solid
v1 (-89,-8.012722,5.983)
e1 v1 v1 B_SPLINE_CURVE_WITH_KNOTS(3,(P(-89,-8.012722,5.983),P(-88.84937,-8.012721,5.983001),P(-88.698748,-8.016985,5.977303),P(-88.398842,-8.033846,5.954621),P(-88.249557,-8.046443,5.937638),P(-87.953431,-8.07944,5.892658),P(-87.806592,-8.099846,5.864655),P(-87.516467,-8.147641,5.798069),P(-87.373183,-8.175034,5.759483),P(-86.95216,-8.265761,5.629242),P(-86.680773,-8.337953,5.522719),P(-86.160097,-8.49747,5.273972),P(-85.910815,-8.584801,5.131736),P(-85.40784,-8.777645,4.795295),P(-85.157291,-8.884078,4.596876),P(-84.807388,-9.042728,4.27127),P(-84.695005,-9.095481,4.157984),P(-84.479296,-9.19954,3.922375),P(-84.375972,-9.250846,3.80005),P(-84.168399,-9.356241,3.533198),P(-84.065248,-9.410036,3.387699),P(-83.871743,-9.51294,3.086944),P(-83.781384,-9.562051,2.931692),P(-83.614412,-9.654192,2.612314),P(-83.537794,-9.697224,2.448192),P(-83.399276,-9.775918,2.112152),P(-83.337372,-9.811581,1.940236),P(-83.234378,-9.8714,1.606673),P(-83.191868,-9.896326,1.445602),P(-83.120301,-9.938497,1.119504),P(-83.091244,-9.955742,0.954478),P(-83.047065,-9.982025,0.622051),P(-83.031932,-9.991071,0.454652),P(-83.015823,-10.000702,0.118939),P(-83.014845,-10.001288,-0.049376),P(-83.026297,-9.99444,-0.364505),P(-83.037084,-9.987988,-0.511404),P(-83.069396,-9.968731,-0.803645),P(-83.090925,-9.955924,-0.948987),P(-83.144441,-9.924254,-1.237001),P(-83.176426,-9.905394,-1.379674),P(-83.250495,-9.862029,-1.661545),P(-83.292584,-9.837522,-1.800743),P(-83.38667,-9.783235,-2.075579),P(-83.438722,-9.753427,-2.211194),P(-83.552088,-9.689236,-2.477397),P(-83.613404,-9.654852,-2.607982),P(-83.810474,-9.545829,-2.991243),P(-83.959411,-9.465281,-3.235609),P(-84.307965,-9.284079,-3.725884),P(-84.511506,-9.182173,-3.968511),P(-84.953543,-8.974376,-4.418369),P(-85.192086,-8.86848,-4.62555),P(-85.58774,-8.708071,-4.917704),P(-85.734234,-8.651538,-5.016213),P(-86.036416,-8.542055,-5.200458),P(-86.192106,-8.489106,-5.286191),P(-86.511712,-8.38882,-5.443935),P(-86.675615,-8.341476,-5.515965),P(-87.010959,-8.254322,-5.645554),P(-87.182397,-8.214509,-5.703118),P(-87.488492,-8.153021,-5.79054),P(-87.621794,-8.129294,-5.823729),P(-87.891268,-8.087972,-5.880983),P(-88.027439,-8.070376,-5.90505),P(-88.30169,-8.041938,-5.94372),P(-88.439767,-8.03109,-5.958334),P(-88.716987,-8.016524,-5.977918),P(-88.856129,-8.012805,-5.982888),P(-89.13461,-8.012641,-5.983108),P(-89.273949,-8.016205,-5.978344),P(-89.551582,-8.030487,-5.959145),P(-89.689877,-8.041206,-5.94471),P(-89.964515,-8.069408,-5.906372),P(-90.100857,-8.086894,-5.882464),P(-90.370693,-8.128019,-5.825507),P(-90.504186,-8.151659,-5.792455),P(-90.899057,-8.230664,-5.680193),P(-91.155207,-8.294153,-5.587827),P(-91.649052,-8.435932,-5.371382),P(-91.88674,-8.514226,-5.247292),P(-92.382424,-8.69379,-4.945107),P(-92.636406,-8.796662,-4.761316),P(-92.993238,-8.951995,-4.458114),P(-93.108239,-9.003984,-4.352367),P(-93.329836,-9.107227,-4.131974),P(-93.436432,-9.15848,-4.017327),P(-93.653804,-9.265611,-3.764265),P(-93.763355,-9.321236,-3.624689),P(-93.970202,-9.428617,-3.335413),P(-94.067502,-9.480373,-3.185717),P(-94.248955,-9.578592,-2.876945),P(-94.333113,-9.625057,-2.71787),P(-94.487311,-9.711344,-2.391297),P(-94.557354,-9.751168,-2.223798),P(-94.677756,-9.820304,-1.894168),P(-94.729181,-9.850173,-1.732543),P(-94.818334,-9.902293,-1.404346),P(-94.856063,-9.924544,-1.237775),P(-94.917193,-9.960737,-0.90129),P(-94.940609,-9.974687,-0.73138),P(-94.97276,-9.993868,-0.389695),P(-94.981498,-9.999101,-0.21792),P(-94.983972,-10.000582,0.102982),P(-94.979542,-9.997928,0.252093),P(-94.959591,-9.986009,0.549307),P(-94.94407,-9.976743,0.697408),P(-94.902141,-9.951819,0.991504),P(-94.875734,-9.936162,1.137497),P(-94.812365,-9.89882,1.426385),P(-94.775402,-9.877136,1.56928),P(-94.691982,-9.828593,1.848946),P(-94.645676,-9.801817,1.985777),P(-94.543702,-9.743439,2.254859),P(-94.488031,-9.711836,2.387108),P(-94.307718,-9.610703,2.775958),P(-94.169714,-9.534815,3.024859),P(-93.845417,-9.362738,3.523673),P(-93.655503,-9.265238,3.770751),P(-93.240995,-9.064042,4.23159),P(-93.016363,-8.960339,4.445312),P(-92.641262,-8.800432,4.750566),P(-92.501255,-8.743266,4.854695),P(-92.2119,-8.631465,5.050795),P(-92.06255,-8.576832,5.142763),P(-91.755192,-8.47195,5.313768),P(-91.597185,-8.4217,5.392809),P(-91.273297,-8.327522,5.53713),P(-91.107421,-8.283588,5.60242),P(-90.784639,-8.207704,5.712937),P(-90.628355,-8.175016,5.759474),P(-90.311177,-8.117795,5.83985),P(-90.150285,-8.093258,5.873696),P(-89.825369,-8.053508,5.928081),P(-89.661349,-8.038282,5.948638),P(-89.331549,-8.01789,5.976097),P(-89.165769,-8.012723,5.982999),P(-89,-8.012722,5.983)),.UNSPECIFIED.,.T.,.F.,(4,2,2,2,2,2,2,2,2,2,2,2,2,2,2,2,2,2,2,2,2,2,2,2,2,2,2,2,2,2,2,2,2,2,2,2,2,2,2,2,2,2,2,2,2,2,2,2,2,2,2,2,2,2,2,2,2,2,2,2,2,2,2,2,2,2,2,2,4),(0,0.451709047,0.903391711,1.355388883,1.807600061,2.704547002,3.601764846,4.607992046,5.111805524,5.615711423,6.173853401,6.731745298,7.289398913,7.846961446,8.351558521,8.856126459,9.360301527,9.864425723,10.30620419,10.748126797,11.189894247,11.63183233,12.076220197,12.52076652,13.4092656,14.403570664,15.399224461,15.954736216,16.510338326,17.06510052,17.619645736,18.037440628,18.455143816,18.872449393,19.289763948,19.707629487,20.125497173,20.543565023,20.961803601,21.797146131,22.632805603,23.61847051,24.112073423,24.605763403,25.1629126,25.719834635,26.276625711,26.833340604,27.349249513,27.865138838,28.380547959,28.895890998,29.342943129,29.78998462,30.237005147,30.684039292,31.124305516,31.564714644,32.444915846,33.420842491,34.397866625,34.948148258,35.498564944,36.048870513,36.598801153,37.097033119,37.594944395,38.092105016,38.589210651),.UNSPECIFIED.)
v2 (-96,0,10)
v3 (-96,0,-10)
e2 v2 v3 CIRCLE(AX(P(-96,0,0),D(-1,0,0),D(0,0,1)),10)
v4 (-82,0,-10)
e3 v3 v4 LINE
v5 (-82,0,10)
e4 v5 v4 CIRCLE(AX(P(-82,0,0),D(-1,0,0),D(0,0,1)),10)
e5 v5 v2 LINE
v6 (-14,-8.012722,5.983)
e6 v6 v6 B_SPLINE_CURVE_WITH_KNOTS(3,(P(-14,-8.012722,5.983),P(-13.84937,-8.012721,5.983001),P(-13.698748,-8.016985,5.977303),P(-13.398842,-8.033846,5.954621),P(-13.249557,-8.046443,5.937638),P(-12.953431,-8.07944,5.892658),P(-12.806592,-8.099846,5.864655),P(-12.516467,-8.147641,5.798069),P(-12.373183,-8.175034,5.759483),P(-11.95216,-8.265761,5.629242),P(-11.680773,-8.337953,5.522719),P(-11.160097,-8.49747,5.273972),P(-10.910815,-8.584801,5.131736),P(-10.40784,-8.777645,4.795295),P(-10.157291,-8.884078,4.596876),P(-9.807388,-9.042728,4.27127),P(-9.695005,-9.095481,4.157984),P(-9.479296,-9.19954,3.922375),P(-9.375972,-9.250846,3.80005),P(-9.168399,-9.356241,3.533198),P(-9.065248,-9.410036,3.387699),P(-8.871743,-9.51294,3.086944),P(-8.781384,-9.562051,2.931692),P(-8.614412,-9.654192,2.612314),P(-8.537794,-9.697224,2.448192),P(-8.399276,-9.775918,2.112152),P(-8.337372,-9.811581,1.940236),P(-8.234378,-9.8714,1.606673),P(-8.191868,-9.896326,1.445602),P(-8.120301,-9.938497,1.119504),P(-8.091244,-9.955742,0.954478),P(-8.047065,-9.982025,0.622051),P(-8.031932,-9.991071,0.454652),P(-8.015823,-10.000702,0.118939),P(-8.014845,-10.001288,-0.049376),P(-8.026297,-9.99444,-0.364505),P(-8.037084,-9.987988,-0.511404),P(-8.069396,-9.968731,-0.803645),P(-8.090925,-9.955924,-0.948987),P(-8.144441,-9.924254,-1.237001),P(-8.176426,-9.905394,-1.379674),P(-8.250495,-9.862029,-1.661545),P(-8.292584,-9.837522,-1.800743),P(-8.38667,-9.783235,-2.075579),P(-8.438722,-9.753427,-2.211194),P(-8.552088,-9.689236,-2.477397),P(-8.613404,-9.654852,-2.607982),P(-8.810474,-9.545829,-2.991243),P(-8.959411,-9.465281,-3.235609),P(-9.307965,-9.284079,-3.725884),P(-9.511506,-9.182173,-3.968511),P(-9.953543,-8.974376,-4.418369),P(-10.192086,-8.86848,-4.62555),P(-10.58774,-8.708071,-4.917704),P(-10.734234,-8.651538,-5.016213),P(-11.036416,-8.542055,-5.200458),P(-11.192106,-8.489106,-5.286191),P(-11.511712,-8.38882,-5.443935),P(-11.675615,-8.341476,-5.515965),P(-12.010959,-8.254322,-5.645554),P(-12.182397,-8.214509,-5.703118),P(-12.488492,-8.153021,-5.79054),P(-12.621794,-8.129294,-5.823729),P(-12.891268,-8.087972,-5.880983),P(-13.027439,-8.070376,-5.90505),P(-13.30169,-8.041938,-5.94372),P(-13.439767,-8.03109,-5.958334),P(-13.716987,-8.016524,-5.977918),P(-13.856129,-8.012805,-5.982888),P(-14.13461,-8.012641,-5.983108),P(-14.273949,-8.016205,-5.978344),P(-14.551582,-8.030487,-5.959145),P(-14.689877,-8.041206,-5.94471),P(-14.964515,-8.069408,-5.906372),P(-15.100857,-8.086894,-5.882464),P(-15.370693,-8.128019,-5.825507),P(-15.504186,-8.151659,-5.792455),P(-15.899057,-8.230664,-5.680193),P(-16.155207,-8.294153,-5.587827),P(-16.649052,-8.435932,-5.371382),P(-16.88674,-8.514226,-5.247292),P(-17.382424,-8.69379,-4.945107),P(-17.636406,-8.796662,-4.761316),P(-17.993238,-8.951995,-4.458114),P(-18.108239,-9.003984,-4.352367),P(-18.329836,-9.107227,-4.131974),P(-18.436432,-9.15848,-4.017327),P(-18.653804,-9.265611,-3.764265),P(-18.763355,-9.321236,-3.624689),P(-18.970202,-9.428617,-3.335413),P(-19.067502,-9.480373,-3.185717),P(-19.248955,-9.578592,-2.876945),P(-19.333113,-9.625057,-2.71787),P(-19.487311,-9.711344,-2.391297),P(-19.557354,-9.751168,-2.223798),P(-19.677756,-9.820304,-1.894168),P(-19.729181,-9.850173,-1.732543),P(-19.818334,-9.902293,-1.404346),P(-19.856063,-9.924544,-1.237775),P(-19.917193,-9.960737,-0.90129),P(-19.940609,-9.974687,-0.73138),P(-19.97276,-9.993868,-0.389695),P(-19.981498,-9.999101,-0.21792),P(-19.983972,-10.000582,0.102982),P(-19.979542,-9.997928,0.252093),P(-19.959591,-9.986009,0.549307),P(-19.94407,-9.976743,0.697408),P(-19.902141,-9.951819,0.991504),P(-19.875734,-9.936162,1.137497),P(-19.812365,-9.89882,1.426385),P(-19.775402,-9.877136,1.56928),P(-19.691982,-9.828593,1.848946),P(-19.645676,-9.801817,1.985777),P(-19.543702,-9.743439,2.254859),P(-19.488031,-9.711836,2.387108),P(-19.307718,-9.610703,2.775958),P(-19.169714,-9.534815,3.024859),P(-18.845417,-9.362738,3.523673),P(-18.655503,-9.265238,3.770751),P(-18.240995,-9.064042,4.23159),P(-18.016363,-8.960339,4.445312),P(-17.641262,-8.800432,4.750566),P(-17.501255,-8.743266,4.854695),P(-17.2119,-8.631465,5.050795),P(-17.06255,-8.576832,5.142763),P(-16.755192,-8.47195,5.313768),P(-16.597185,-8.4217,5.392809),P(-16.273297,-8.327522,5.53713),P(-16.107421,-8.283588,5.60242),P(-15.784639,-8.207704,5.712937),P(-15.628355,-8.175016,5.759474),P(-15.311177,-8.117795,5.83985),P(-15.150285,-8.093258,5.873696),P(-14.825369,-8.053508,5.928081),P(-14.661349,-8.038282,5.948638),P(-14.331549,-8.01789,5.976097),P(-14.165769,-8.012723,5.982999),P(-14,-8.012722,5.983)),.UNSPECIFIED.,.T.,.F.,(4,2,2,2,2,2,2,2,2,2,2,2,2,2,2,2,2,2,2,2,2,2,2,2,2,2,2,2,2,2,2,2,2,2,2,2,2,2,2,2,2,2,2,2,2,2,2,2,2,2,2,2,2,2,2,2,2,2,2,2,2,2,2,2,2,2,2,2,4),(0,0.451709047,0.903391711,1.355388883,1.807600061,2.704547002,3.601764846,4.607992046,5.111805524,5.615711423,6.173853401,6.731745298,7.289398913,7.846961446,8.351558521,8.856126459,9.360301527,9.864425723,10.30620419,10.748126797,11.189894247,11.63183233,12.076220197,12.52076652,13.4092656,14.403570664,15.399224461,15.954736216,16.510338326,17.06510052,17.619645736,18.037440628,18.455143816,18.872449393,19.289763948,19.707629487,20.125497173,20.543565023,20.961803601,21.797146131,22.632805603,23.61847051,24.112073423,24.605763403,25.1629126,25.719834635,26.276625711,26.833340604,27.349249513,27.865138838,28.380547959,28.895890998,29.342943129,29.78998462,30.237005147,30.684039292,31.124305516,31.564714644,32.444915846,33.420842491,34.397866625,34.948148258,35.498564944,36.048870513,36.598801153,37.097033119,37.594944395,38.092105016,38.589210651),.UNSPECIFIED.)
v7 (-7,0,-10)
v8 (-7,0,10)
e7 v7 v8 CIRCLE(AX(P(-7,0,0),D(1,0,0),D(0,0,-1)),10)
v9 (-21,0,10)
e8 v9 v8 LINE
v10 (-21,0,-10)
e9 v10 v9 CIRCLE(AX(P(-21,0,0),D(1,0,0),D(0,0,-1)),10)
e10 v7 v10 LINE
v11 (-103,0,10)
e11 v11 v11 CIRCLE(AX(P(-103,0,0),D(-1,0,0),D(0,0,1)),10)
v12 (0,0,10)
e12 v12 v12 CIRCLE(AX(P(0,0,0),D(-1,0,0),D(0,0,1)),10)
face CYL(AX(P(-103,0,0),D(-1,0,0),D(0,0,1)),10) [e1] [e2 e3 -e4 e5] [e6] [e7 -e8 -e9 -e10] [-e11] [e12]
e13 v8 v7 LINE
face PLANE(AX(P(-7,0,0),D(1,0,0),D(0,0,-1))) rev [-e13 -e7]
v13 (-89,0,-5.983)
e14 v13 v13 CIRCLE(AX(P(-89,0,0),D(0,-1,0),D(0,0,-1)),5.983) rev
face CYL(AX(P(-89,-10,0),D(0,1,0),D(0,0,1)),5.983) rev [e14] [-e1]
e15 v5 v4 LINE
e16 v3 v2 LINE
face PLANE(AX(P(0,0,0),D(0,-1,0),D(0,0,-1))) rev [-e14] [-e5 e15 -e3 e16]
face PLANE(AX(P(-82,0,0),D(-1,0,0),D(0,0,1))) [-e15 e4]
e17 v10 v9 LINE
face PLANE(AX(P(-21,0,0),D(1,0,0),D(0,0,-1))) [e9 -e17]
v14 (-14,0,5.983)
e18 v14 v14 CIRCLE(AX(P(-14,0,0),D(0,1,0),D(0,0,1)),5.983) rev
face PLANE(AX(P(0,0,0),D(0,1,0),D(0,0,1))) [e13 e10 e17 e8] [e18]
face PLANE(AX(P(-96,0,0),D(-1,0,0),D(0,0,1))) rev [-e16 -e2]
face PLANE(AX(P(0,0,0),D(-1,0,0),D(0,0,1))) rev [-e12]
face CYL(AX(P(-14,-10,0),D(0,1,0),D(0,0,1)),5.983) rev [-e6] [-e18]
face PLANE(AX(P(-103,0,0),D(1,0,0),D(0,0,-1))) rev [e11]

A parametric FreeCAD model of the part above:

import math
import FreeCAD as App
import Part
import Sketcher


def add_polygon(sketch, points):
    """Adds a closed chain of lines whose ends are joined by coincident constraints."""
    first, n = sketch.GeometryCount, len(points)
    for a, b in zip(points, points[1:] + points[:1]):
        sketch.addGeometry(Part.LineSegment(App.Vector(*a, 0), App.Vector(*b, 0)), False)
    for i in range(n):
        sketch.addConstraint(Sketcher.Constraint("Coincident", first + i, 2, first + (i + 1) % n, 1))

doc = App.newDocument("Part")
params = doc.addObject("Spreadsheet::Sheet", "Params")
for row, (alias, value) in enumerate([
    ("sketch1_width", "103 mm"),
    ("sketch1_height", "10 mm"),
    ("revolution_angle", "360 deg"),
    ("pocket1_length", "14 mm"),
    ("pocket2_length", "14 mm"),
    ("sketch5_width", "14 mm"),
    ("pocket4_length", "5 mm"),
], start=1):
    params.set(f"A{row}", alias)
    params.set(f"B{row}", "=" + value)
    params.setAlias(f"B{row}", alias)

body = doc.addObject("PartDesign::Body", "Body")

sketch1 = body.newObject("Sketcher::SketchObject", "Sketch")
sketch1.AttachmentSupport = (doc.getObject("XY_Plane"), [""])
sketch1.MapMode = "FlatFace"
add_polygon(sketch1, [(-103, 10), (-103, 0), (0, 0), (0, 10)])
sketch1.addConstraint(Sketcher.Constraint("Vertical", 0))
sketch1.addConstraint(Sketcher.Constraint("Horizontal", 1))
sketch1.addConstraint(Sketcher.Constraint("Vertical", 2))
sketch1.addConstraint(Sketcher.Constraint("Horizontal", 3))
sketch1.addConstraint(Sketcher.Constraint("Coincident", 1, 2, -1, 1))
sketch1.addConstraint(Sketcher.Constraint("DistanceX", 1, 1, 1, 2, 103.0))
sketch1.addConstraint(Sketcher.Constraint("DistanceY", 0, 2, 0, 1, 10.0))
sketch1.setExpression("Constraints[9]", "Params.sketch1_width")
sketch1.setExpression("Constraints[10]", "Params.sketch1_height")
revolution = body.newObject("PartDesign::Revolution", "Revolution")
revolution.Profile = sketch1
revolution.ReferenceAxis = (sketch1, ["H_Axis"])
revolution.setExpression("Angle", "Params.revolution_angle")

sketch2 = body.newObject("Sketcher::SketchObject", "Sketch001")
sketch2.AttachmentSupport = (doc.getObject("YZ_Plane"), [""])
sketch2.MapMode = "FlatFace"
sketch2.AttachmentOffset = App.Placement(App.Vector(0, 0, -7), App.Rotation())
sketch2.addGeometry(Part.LineSegment(App.Vector(5, 10.872336, 0), App.Vector(5, -10.872336, 0)), False)
sketch2.addGeometry(Part.ArcOfCircle(Part.Circle(App.Vector(0, 0, 0), App.Vector(0, 0, 1), 11.966941), math.radians(-65.303113), math.radians(65.303113)), False)
sketch2.addConstraint(Sketcher.Constraint("Coincident", 0, 1, 1, 2))
sketch2.addConstraint(Sketcher.Constraint("Coincident", 1, 1, 0, 2))
sketch2.addConstraint(Sketcher.Constraint("Vertical", 0))
sketch2.addConstraint(Sketcher.Constraint("Coincident", 1, 3, -1, 1))
sketch2.addConstraint(Sketcher.Constraint("DistanceX", -1, 1, 0, 1, 5.0))
sketch2.addConstraint(Sketcher.Constraint("Radius", 1, 11.966941))
pocket1 = body.newObject("PartDesign::Pocket", "Pocket")
pocket1.Profile = sketch2
pocket1.setExpression("Length", "Params.pocket1_length")

sketch3 = body.newObject("Sketcher::SketchObject", "Sketch002")
sketch3.AttachmentSupport = (doc.getObject("YZ_Plane"), [""])
sketch3.MapMode = "FlatFace"
sketch3.AttachmentOffset = App.Placement(App.Vector(0, 0, -96), App.Rotation())
sketch3.addGeometry(Part.LineSegment(App.Vector(5, -13.431589, 0), App.Vector(5, 13.431589, 0)), False)
sketch3.addGeometry(Part.ArcOfCircle(Part.Circle(App.Vector(0, 0, 0), App.Vector(0, 0, 1), 14.332047), math.radians(-69.581876), math.radians(69.581876)), False)
sketch3.addConstraint(Sketcher.Constraint("Coincident", 0, 1, 1, 1))
sketch3.addConstraint(Sketcher.Constraint("Coincident", 1, 2, 0, 2))
sketch3.addConstraint(Sketcher.Constraint("Vertical", 0))
sketch3.addConstraint(Sketcher.Constraint("Coincident", 1, 3, -1, 1))
sketch3.addConstraint(Sketcher.Constraint("DistanceX", -1, 1, 0, 1, 5.0))
sketch3.addConstraint(Sketcher.Constraint("Radius", 1, 14.332047))
pocket2 = body.newObject("PartDesign::Pocket", "Pocket001")
pocket2.Profile = sketch3
pocket2.setExpression("Length", "Params.pocket2_length")
pocket2.Reversed = True

sketch4 = body.newObject("Sketcher::SketchObject", "Sketch003")
sketch4.AttachmentSupport = (doc.getObject("XZ_Plane"), [""])
sketch4.MapMode = "FlatFace"
sketch4.addGeometry(Part.Circle(App.Vector(-89, 0, 0), App.Vector(0, 0, 1), 5.983), False)
sketch4.addGeometry(Part.Circle(App.Vector(-14, 0, 0), App.Vector(0, 0, 1), 5.983), False)
sketch4.addConstraint(Sketcher.Constraint("Equal", 0, 1))
sketch4.addConstraint(Sketcher.Constraint("PointOnObject", 0, 3, -1))
sketch4.addConstraint(Sketcher.Constraint("PointOnObject", 1, 3, -1))
sketch4.addConstraint(Sketcher.Constraint("Diameter", 0, 11.966))
sketch4.addConstraint(Sketcher.Constraint("DistanceX", 0, 3, -1, 1, 89.0))
sketch4.addConstraint(Sketcher.Constraint("DistanceX", 1, 3, -1, 1, 14.0))
pocket3 = body.newObject("PartDesign::Pocket", "Pocket002")
pocket3.Profile = sketch4
pocket3.Type = "ThroughAll"
pocket3.Midplane = True

sketch5 = body.newObject("Sketcher::SketchObject", "Sketch004")
sketch5.AttachmentSupport = (doc.getObject("XZ_Plane"), [""])
sketch5.MapMode = "FlatFace"
sketch5.AttachmentOffset = App.Placement(App.Vector(0, 0, -5), App.Rotation())
add_polygon(sketch5, [(-96, -12.713468), (-96, 12.713468), (-82, 12.713468), (-82, -12.713468)])
add_polygon(sketch5, [(-21, -12.713468), (-21, 12.713468), (-7, 12.713468), (-7, -12.713468)])
sketch5.addConstraint(Sketcher.Constraint("Vertical", 0))
sketch5.addConstraint(Sketcher.Constraint("Horizontal", 1))
sketch5.addConstraint(Sketcher.Constraint("Vertical", 2))
sketch5.addConstraint(Sketcher.Constraint("Horizontal", 3))
sketch5.addConstraint(Sketcher.Constraint("Vertical", 4))
sketch5.addConstraint(Sketcher.Constraint("Horizontal", 5))
sketch5.addConstraint(Sketcher.Constraint("Vertical", 6))
sketch5.addConstraint(Sketcher.Constraint("Horizontal", 7))
sketch5.addConstraint(Sketcher.Constraint("Horizontal", 1, 2, 4, 2))
sketch5.addConstraint(Sketcher.Constraint("Horizontal", 3, 2, 6, 2))
sketch5.addConstraint(Sketcher.Constraint("Equal", 3, 5))
sketch5.addConstraint(Sketcher.Constraint("DistanceX", 1, 1, 1, 2, 14.0))
sketch5.addConstraint(Sketcher.Constraint("DistanceX", 0, 2, -1, 1, 96.0))
sketch5.addConstraint(Sketcher.Constraint("DistanceX", 4, 2, -1, 1, 21.0))
sketch5.addConstraint(Sketcher.Constraint("DistanceY", 0, 1, 0, 2, 25.426935))
sketch5.addConstraint(Sketcher.Constraint("DistanceY", -1, 1, 0, 2, 12.713468))
sketch5.setExpression("Constraints[19]", "Params.sketch5_width")
pocket4 = body.newObject("PartDesign::Pocket", "Pocket003")
pocket4.Profile = sketch5
pocket4.setExpression("Length", "Params.pocket4_length")
pocket4.Reversed = True

doc.recompute()
